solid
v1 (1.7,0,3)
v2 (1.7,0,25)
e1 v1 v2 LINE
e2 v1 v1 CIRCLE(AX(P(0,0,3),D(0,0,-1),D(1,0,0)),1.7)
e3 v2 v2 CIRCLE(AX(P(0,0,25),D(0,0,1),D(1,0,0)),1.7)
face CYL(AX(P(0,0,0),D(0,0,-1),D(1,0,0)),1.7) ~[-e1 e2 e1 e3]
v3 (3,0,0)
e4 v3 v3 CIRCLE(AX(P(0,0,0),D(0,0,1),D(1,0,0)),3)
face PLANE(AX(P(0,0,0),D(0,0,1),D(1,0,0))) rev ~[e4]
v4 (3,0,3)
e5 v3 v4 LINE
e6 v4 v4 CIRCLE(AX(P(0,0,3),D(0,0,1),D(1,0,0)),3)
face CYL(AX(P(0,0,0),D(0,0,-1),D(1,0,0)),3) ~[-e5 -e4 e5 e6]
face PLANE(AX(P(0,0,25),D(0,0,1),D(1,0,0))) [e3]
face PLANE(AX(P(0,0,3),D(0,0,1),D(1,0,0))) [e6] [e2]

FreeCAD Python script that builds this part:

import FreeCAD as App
import Part
import Sketcher
Q = App.Units.Quantity

doc = App.newDocument("Part")
body = doc.addObject("PartDesign::Body", "Body")

# Sketch on XY plane
sketch1 = body.newObject("Sketcher::SketchObject", "Sketch")
sketch1.AttachmentSupport = (doc.getObject("XY_Plane"), [""])
sketch1.MapMode = "FlatFace"
sketch1.addGeometry(Part.Circle(App.Vector(0, 0, 0), App.Vector(0, 0, 1), 3), False)
sketch1.addConstraint([
    Sketcher.Constraint("Coincident", 0, 3, -1, 1),
    Sketcher.Constraint("Diameter", 0, Q("6 mm")),
])
pad1 = body.newObject("PartDesign::Pad", "Pad")
pad1.Profile = sketch1
pad1.Length = 3
body2 = doc.addObject("PartDesign::Body", "Body001")

# Sketch on XY plane
sketch2 = body2.newObject("Sketcher::SketchObject", "Sketch001")
sketch2.AttachmentSupport = (doc.getObject("XY_Plane001"), [""])
sketch2.MapMode = "FlatFace"
sketch2.addGeometry(Part.Circle(App.Vector(0, 0, 0), App.Vector(0, 0, 1), 1.7), False)
sketch2.addConstraint([
    Sketcher.Constraint("Coincident", 0, 3, -1, 1),
    Sketcher.Constraint("Diameter", 0, Q("3.4 mm")),
])
pad2 = body2.newObject("PartDesign::Pad", "Pad001")
pad2.Profile = sketch2
pad2.Length = 25
doc.recompute()

boolean = body2.newObject("PartDesign::Boolean", "Boolean")
boolean.Type = "Fuse"
boolean.addObjects([body])

doc.recompute()
